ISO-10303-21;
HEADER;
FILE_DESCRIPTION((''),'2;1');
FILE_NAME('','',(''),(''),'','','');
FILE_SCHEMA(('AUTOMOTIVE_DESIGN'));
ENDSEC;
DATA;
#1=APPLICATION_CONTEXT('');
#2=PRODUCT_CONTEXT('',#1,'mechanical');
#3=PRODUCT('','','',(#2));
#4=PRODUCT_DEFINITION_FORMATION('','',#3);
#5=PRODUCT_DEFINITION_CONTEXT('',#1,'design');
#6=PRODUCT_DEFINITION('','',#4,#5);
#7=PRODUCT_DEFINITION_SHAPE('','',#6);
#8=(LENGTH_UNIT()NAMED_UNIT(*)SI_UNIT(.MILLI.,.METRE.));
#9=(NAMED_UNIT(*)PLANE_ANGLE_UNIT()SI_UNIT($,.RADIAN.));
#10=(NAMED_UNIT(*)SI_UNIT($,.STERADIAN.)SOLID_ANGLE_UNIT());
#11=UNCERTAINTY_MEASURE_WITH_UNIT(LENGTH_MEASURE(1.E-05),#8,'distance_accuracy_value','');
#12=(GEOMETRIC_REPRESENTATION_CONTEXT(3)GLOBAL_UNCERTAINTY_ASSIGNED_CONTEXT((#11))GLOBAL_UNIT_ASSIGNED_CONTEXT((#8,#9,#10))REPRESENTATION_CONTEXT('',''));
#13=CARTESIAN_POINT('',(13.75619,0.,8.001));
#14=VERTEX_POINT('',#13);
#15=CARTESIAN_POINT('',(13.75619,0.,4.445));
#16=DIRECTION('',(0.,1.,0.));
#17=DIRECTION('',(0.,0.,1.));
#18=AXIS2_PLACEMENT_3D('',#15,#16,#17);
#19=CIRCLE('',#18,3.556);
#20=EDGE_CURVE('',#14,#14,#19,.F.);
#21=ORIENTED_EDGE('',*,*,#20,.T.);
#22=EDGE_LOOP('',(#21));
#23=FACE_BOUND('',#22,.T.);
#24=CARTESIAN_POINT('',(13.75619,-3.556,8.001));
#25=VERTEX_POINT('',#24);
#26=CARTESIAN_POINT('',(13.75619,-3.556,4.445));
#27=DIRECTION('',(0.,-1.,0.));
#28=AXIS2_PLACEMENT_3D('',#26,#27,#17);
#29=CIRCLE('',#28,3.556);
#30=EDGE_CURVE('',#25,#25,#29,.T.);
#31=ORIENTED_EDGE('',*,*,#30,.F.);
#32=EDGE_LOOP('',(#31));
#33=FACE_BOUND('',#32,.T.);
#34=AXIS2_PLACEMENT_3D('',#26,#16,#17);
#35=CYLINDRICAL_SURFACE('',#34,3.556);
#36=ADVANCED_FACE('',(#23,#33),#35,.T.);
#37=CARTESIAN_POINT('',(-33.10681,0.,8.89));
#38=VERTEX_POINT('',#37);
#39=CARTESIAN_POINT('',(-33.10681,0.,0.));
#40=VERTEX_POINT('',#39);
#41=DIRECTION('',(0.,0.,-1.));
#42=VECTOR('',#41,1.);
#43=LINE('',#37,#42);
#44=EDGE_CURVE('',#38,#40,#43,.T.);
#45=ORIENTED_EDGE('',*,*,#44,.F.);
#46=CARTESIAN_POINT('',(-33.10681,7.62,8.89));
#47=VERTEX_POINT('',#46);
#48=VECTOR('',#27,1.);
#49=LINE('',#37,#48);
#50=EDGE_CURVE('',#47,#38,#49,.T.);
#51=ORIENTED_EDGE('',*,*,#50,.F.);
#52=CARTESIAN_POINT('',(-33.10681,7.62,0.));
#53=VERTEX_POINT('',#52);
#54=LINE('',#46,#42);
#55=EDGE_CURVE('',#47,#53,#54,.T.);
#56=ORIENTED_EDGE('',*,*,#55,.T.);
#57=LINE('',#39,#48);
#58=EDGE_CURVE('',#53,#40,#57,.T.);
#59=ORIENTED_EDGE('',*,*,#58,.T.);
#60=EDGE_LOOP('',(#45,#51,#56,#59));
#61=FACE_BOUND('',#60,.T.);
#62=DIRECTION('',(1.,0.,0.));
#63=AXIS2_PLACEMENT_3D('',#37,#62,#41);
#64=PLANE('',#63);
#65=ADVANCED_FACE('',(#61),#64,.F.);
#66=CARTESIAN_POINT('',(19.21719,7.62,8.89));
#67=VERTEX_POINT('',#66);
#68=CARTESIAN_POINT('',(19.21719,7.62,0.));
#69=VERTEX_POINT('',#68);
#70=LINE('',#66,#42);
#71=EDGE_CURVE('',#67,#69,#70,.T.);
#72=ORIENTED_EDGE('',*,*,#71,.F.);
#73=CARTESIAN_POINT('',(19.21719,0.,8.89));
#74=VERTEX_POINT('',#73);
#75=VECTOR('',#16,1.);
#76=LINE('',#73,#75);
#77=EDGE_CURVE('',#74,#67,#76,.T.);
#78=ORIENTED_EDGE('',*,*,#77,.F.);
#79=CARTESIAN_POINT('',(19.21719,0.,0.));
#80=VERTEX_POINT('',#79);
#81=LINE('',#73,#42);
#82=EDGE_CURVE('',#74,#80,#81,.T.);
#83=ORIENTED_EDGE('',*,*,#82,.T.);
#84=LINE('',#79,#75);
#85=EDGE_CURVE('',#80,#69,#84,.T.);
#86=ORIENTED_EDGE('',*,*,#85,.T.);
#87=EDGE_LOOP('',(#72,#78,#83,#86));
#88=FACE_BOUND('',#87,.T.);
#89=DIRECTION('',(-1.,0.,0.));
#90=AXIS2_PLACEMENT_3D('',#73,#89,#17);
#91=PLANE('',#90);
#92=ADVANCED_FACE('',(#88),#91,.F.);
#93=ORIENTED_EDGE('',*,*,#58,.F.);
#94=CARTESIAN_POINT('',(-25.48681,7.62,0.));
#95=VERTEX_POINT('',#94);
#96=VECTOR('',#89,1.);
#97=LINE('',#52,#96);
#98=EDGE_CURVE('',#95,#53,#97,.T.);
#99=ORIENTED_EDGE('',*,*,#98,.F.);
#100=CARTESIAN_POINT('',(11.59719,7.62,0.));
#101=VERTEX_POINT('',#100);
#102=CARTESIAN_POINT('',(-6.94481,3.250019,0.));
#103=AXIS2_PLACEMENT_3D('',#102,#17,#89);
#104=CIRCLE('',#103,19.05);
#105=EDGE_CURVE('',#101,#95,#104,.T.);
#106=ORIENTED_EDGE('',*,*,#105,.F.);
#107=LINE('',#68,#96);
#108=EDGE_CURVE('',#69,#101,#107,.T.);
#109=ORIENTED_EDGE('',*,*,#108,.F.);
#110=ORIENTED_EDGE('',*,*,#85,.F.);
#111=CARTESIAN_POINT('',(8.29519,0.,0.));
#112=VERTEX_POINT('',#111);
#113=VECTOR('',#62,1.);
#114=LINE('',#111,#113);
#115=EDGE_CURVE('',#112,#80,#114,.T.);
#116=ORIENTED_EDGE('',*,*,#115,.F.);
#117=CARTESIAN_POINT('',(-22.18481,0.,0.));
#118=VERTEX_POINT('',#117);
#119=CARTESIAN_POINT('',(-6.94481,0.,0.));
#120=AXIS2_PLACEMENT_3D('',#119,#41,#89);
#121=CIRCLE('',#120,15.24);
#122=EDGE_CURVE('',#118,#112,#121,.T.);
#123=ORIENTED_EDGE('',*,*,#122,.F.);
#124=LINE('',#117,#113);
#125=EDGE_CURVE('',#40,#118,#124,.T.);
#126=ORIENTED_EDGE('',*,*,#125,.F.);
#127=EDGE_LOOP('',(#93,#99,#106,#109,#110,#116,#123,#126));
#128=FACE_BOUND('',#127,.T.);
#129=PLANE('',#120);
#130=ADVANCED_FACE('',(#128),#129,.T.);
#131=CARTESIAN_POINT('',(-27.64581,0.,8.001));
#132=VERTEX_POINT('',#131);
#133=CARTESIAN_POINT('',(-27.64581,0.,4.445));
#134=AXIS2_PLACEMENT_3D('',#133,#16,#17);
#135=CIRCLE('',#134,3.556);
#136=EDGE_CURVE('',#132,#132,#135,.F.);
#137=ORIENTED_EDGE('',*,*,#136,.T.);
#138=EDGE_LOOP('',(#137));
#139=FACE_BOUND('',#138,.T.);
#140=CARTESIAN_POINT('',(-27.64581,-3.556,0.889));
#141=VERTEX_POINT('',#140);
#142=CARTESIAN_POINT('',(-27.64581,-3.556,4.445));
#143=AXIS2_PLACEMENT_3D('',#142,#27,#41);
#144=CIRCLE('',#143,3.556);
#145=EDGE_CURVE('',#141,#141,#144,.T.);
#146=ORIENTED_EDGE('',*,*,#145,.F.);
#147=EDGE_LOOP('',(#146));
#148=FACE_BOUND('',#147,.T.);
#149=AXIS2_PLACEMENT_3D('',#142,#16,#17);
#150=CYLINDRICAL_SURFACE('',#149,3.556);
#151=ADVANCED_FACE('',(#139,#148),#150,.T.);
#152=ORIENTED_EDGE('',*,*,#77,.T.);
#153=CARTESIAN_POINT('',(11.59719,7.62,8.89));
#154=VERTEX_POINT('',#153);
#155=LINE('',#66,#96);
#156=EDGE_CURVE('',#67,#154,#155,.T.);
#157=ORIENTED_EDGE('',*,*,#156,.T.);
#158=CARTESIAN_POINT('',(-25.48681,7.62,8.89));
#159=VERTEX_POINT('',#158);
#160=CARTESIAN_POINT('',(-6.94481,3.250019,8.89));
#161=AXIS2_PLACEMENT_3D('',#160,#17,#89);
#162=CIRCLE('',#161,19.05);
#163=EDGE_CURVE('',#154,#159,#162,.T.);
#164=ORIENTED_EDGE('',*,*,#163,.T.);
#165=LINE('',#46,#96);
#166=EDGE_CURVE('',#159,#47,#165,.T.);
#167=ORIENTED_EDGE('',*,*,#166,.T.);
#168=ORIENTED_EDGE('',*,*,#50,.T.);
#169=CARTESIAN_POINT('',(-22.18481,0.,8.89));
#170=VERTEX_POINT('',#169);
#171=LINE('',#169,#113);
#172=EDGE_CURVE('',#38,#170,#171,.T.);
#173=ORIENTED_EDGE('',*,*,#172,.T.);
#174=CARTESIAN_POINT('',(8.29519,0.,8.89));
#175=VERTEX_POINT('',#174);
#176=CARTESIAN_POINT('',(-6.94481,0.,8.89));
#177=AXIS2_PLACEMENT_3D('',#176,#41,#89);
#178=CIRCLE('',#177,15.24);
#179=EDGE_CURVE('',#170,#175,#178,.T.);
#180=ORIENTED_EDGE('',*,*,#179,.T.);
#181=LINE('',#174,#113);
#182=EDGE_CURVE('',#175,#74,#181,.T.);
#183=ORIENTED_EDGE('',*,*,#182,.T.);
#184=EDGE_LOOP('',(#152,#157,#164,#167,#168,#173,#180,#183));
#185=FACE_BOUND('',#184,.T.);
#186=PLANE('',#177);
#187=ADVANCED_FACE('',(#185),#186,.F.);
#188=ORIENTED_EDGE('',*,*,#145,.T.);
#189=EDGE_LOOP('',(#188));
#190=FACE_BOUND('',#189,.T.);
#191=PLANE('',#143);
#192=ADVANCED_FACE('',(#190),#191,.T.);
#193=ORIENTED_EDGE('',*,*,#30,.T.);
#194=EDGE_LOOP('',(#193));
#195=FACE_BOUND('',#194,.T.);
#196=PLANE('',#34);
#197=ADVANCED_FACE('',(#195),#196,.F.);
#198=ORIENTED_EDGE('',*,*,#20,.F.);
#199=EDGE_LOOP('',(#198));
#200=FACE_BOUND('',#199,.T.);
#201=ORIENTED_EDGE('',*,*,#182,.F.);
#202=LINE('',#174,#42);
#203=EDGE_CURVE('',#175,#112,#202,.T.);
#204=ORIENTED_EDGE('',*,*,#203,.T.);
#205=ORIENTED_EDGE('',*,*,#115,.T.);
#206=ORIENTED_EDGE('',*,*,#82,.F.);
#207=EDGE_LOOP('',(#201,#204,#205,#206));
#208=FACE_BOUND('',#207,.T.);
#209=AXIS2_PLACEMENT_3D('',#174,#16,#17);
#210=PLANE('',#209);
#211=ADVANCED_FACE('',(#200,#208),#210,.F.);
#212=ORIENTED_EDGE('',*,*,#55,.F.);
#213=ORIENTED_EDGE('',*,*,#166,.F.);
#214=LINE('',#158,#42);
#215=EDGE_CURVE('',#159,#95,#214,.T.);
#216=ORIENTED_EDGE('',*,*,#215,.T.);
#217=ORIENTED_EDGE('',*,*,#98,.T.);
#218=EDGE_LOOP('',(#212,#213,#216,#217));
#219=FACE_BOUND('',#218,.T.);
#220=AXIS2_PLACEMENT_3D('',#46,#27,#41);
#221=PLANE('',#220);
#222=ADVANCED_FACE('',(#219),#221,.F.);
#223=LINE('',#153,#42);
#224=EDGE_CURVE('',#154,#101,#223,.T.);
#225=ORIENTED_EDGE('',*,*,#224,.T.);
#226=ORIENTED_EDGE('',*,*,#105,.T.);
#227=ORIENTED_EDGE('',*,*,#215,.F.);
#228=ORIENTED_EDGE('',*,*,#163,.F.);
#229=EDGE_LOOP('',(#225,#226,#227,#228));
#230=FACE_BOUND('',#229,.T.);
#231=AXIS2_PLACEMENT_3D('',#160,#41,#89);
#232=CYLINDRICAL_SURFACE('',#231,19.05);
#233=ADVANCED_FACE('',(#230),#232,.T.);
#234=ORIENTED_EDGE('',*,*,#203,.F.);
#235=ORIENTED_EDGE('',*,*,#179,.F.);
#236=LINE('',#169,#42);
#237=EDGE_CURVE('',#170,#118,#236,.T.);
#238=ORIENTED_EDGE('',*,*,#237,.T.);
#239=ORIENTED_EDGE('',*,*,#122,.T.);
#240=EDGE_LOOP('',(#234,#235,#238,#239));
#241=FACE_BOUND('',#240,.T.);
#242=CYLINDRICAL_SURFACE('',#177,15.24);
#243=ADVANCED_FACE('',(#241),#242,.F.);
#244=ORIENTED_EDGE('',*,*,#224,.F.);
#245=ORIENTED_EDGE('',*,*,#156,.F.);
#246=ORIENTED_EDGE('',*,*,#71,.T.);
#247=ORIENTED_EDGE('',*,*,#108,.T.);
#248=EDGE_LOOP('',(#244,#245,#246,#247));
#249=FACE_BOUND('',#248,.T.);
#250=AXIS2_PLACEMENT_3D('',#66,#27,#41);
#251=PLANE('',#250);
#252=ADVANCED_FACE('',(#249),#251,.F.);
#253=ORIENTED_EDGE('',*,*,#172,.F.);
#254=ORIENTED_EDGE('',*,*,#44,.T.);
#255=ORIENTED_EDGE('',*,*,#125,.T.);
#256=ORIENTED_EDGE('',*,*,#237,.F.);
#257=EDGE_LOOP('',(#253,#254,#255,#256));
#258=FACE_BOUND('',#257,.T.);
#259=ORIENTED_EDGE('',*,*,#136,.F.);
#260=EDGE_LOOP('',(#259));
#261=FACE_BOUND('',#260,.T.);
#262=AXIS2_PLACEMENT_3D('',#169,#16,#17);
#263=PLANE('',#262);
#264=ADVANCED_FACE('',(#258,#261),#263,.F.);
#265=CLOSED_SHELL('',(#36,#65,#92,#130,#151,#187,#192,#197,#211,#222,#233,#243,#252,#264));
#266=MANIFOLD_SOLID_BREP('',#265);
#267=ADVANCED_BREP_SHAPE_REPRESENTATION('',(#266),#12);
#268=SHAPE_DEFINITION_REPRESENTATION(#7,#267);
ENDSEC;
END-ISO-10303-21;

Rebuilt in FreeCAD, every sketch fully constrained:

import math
import FreeCAD as App
import Part
import Sketcher
Q = App.Units.Quantity

doc = App.newDocument("Part")
params = doc.addObject("Spreadsheet::Sheet", "Params")
for row, (alias, value) in enumerate([
    ("sketch1_radius", "0.6 in"),
    ("sketch1_radius2", "0.75 in"),
    ("sketch1_width", "0.3 in"),
    ("sketch1_width2", "0.43 in"),
    ("pad1_length", "0.35 in"),
    ("sketch2_diameter", "0.28 in"),
    ("pad2_length", "0.14 in"),
], start=1):
    params.set(f"A{row}", alias)
    params.set(f"B{row}", "=" + value)
    params.setAlias(f"B{row}", alias)

body = doc.addObject("PartDesign::Body", "Body")

sketch1 = body.newObject("Sketcher::SketchObject", "Sketch")
sketch1.AttachmentSupport = (doc.getObject("XY_Plane"), [""])
sketch1.MapMode = "FlatFace"
sketch1.addGeometry([
    Part.LineSegment(App.Vector(-33, 0, 0), App.Vector(-22, 0, 0)),
    Part.ArcOfCircle(Part.Circle(App.Vector(-7, 0, 0), App.Vector(0, 0, 1), 15), math.radians(0), math.radians(180)),
    Part.LineSegment(App.Vector(8, 0, 0), App.Vector(19, 0, 0)),
    Part.LineSegment(App.Vector(19, 0, 0), App.Vector(19, 8, 0)),
    Part.LineSegment(App.Vector(19, 8, 0), App.Vector(12, 8, 0)),
    Part.ArcOfCircle(Part.Circle(App.Vector(-7, 3, 0), App.Vector(0, 0, 1), 19), math.radians(13), math.radians(167)),
    Part.LineSegment(App.Vector(-25, 8, 0), App.Vector(-33, 8, 0)),
    Part.LineSegment(App.Vector(-33, 8, 0), App.Vector(-33, 0, 0)),
], False)
sketch1.addConstraint([
    Sketcher.Constraint("Coincident", 0, 2, 1, 2),
    Sketcher.Constraint("Coincident", 1, 1, 2, 1),
    Sketcher.Constraint("Coincident", 2, 2, 3, 1),
    Sketcher.Constraint("Coincident", 3, 2, 4, 1),
    Sketcher.Constraint("Coincident", 4, 2, 5, 1),
    Sketcher.Constraint("Coincident", 5, 2, 6, 1),
    Sketcher.Constraint("Coincident", 6, 2, 7, 1),
    Sketcher.Constraint("Coincident", 7, 2, 0, 1),
    Sketcher.Constraint("Horizontal", 0),
    Sketcher.Constraint("Horizontal", 2),
    Sketcher.Constraint("Vertical", 3),
    Sketcher.Constraint("Horizontal", 4),
    Sketcher.Constraint("Horizontal", 6),
    Sketcher.Constraint("Vertical", 7),
    Sketcher.Constraint("PointOnObject", 1, 3, -1),
    Sketcher.Constraint("PointOnObject", 0, 2, -1),
    Sketcher.Constraint("PointOnObject", 1, 1, -1),
    Sketcher.Constraint("Horizontal", 4, 2, 5, 2),
    Sketcher.Constraint("Vertical", 1, 3, 5, 3),
    Sketcher.Constraint("Equal", 0, 2),
    Sketcher.Constraint("Equal", 6, 3),
    Sketcher.Constraint("Radius", 1, Q("0.6 in")),
    Sketcher.Constraint("Radius", 5, Q("0.75 in")),
    Sketcher.Constraint("DistanceX", 4, 2, 4, 1, Q("0.3 in")),
    Sketcher.Constraint("DistanceX", 0, 1, 0, 2, Q("0.43 in")),
    Sketcher.Constraint("DistanceX", 1, 3, -1, 1, Q("6.94481 mm")),
])
sketch1.setExpression("Constraints[21]", "Params.sketch1_radius")
sketch1.setExpression("Constraints[22]", "Params.sketch1_radius2")
sketch1.setExpression("Constraints[23]", "Params.sketch1_width")
sketch1.setExpression("Constraints[24]", "Params.sketch1_width2")
pad1 = body.newObject("PartDesign::Pad", "Pad")
pad1.Profile = sketch1
pad1.setExpression("Length", "Params.pad1_length")

sketch2 = body.newObject("Sketcher::SketchObject", "Sketch001")
sketch2.AttachmentSupport = (doc.getObject("XZ_Plane"), [""])
sketch2.MapMode = "FlatFace"
sketch2.addGeometry([
    Part.Circle(App.Vector(-27.6, 4.4, 0), App.Vector(0, 0, 1), 3.6),
    Part.Circle(App.Vector(13.8, 4.4, 0), App.Vector(0, 0, 1), 3.6),
], False)
sketch2.addConstraint([
    Sketcher.Constraint("Equal", 0, 1),
    Sketcher.Constraint("Horizontal", 0, 3, 1, 3),
    Sketcher.Constraint("Diameter", 0, Q("0.28 in")),
    Sketcher.Constraint("DistanceX", 0, 3, 1, 3, Q("1.63 in")),
    Sketcher.Constraint("DistanceY", -1, 1, 0, 3, Q("0.175 in")),
    Sketcher.Constraint("DistanceX", 0, 3, -1, 1, Q("27.64581 mm")),
])
sketch2.setExpression("Constraints[2]", "Params.sketch2_diameter")
pad2 = body.newObject("PartDesign::Pad", "Pad001")
pad2.Profile = sketch2
pad2.setExpression("Length", "Params.pad2_length")

doc.recompute()
